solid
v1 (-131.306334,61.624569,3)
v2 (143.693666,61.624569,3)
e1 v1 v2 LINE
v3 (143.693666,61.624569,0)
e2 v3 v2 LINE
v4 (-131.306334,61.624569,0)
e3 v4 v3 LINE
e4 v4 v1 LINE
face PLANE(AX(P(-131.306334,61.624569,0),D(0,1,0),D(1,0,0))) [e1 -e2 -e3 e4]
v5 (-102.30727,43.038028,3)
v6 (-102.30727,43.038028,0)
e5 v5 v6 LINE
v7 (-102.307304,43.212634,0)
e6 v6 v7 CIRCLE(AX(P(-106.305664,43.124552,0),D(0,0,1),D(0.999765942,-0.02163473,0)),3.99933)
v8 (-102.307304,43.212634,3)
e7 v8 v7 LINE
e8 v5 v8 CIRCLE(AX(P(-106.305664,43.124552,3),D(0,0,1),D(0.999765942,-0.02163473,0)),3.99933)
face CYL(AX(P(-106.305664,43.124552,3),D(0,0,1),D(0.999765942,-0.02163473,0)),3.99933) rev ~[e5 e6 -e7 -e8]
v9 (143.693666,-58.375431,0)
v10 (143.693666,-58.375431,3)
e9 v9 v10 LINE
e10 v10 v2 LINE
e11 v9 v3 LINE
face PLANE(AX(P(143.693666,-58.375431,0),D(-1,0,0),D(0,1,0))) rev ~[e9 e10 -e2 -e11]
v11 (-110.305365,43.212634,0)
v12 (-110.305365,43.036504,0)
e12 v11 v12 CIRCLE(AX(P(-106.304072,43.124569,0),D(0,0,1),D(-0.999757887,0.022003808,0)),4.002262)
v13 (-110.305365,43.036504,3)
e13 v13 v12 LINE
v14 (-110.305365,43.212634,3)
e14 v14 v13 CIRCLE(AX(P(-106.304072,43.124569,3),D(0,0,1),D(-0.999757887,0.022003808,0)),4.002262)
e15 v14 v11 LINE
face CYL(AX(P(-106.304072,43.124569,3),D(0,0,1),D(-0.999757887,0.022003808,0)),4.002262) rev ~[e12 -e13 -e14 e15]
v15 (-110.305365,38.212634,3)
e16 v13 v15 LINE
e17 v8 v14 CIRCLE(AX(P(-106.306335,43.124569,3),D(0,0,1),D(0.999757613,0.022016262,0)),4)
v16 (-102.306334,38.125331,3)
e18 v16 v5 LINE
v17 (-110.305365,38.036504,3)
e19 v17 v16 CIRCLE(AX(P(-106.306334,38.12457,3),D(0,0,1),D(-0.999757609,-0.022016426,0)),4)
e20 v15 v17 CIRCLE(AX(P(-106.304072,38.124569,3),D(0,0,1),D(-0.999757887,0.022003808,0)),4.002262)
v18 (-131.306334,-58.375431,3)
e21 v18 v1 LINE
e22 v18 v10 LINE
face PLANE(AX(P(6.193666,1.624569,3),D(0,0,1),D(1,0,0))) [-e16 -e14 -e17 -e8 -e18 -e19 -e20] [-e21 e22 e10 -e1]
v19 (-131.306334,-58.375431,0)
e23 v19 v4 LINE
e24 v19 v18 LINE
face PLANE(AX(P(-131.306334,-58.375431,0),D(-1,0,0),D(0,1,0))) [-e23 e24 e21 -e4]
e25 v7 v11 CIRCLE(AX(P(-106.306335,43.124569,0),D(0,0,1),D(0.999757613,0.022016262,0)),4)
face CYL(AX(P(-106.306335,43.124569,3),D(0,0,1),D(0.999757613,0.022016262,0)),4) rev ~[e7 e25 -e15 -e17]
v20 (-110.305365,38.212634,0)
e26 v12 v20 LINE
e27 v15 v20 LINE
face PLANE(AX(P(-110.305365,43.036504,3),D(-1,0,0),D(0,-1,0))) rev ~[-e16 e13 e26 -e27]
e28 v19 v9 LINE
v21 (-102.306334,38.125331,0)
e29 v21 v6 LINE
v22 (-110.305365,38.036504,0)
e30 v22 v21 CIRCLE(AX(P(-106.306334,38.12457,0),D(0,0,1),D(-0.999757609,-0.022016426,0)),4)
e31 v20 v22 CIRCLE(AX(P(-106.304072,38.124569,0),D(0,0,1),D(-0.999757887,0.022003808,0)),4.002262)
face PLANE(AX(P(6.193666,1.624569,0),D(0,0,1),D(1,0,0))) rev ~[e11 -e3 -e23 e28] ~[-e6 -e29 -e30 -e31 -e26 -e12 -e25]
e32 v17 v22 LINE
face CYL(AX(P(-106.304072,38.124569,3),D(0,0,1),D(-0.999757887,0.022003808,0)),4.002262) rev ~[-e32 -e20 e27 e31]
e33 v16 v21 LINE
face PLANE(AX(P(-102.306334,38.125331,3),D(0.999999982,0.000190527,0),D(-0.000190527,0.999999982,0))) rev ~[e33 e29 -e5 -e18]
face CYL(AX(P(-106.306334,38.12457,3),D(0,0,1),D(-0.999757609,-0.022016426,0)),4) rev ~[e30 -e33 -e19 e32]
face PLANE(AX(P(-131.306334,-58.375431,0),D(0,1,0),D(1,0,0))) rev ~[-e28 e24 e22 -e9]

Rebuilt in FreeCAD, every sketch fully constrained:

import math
import FreeCAD as App
import Part
import Sketcher
Q = App.Units.Quantity


def add_polygon(sketch, points):
    """Adds a closed chain of lines whose ends are joined by coincident constraints."""
    first, n = sketch.GeometryCount, len(points)
    for a, b in zip(points, points[1:] + points[:1]):
        sketch.addGeometry(Part.LineSegment(App.Vector(*a, 0), App.Vector(*b, 0)), False)
    for i in range(n):
        sketch.addConstraint(Sketcher.Constraint("Coincident", first + i, 2, first + (i + 1) % n, 1))

doc = App.newDocument("Part")
body = doc.addObject("PartDesign::Body", "Body")

sketch1 = body.newObject("Sketcher::SketchObject", "Sketch")
sketch1.AttachmentSupport = (doc.getObject("XY_Plane"), [""])
sketch1.MapMode = "FlatFace"
add_polygon(sketch1, [(-131, 62), (-131, -58), (144, -58), (144, 62)])
sketch1.addConstraint(Sketcher.Constraint("Vertical", 0))
sketch1.addConstraint(Sketcher.Constraint("Horizontal", 1))
sketch1.addConstraint(Sketcher.Constraint("Vertical", 2))
sketch1.addConstraint(Sketcher.Constraint("Horizontal", 3))
sketch1.addConstraint(Sketcher.Constraint("DistanceX", 1, 1, 1, 2, Q("275 mm")))
sketch1.addConstraint(Sketcher.Constraint("DistanceY", 0, 2, 0, 1, Q("120 mm")))
sketch1.addConstraint(Sketcher.Constraint("DistanceY", 0, 2, -1, 1, Q("58.375431 mm")))
sketch1.addConstraint(Sketcher.Constraint("DistanceX", 0, 2, -1, 1, Q("131.306334 mm")))
pad1 = body.newObject("PartDesign::Pad", "Pad")
pad1.Profile = sketch1
pad1.Length = 3

sketch2 = body.newObject("Sketcher::SketchObject", "Sketch001")
sketch2.AttachmentSupport = (doc.getObject("XY_Plane"), [""])
sketch2.MapMode = "FlatFace"
sketch2.AttachmentOffset = App.Placement(App.Vector(0, 0, 3), App.Rotation())
sketch2.addGeometry(Part.ArcOfCircle(Part.Circle(App.Vector(-106.31, 43.12, 0), App.Vector(0, 0, 1), 4), math.radians(-1.24), math.radians(1.26)), False)
sketch2.addGeometry(Part.ArcOfCircle(Part.Circle(App.Vector(-106.31, 43.12, 0), App.Vector(0, 0, 1), 4), math.radians(1), math.radians(179)), False)
sketch2.addGeometry(Part.ArcOfCircle(Part.Circle(App.Vector(-106.3, 43.12, 0), App.Vector(0, 0, 1), 4), math.radians(178.74), math.radians(181.26)), False)
sketch2.addGeometry(Part.LineSegment(App.Vector(-110.31, 43.04, 0), App.Vector(-110.31, 38.21, 0)), False)
sketch2.addGeometry(Part.ArcOfCircle(Part.Circle(App.Vector(-106.3, 38.12, 0), App.Vector(0, 0, 1), 4), math.radians(178.74), math.radians(181.26)), False)
sketch2.addGeometry(Part.ArcOfCircle(Part.Circle(App.Vector(-106.31, 38.12, 0), App.Vector(0, 0, 1), 4), math.radians(-179), math.radians(0)), False)
sketch2.addGeometry(Part.LineSegment(App.Vector(-102.31, 38.13, 0), App.Vector(-102.31, 43.04, 0)), False)
sketch2.addConstraint(Sketcher.Constraint("Coincident", 0, 2, 1, 1))
sketch2.addConstraint(Sketcher.Constraint("Coincident", 1, 2, 2, 1))
sketch2.addConstraint(Sketcher.Constraint("Coincident", 2, 2, 3, 1))
sketch2.addConstraint(Sketcher.Constraint("Coincident", 3, 2, 4, 1))
sketch2.addConstraint(Sketcher.Constraint("Coincident", 4, 2, 5, 1))
sketch2.addConstraint(Sketcher.Constraint("Tangent", 5, 2, 6, 1))
sketch2.addConstraint(Sketcher.Constraint("Coincident", 6, 2, 0, 1))
sketch2.addConstraint(Sketcher.Constraint("Vertical", 3))
sketch2.addConstraint(Sketcher.Constraint("Equal", 2, 4))
sketch2.addConstraint(Sketcher.Constraint("Equal", 1, 5))
sketch2.addConstraint(Sketcher.Constraint("Horizontal", 1, 3, 2, 3))
sketch2.addConstraint(Sketcher.Constraint("Horizontal", 4, 3, 5, 3))
sketch2.addConstraint(Sketcher.Constraint("Horizontal", 0, 2, 1, 2))
sketch2.addConstraint(Sketcher.Constraint("Vertical", 2, 3, 4, 3))
sketch2.addConstraint(Sketcher.Constraint("Vertical", 1, 2, 2, 2))
sketch2.addConstraint(Sketcher.Constraint("Vertical", 3, 2, 4, 2))
sketch2.addConstraint(Sketcher.Constraint("Radius", 1, Q("4 mm")))
sketch2.addConstraint(Sketcher.Constraint("DistanceY", 4, 3, 2, 3, Q("5 mm")))
sketch2.addConstraint(Sketcher.Constraint("Radius", 0, Q("3.99933 mm")))
sketch2.addConstraint(Sketcher.Constraint("Radius", 2, Q("4.002262 mm")))
sketch2.addConstraint(Sketcher.Constraint("DistanceY", 3, 2, 3, 1, Q("4.82387 mm")))
sketch2.addConstraint(Sketcher.Constraint("DistanceX", 1, 2, 0, 3, Q("3.999701 mm")))
sketch2.addConstraint(Sketcher.Constraint("DistanceY", -1, 1, 1, 3, Q("43.124569 mm")))
sketch2.addConstraint(Sketcher.Constraint("DistanceY", -1, 1, 5, 2, Q("38.125331 mm")))
sketch2.addConstraint(Sketcher.Constraint("DistanceX", 6, 2, -1, 1, Q("102.30727 mm")))
pocket1 = body.newObject("PartDesign::Pocket", "Pocket")
pocket1.Profile = sketch2
pocket1.Length = 3

doc.recompute()
